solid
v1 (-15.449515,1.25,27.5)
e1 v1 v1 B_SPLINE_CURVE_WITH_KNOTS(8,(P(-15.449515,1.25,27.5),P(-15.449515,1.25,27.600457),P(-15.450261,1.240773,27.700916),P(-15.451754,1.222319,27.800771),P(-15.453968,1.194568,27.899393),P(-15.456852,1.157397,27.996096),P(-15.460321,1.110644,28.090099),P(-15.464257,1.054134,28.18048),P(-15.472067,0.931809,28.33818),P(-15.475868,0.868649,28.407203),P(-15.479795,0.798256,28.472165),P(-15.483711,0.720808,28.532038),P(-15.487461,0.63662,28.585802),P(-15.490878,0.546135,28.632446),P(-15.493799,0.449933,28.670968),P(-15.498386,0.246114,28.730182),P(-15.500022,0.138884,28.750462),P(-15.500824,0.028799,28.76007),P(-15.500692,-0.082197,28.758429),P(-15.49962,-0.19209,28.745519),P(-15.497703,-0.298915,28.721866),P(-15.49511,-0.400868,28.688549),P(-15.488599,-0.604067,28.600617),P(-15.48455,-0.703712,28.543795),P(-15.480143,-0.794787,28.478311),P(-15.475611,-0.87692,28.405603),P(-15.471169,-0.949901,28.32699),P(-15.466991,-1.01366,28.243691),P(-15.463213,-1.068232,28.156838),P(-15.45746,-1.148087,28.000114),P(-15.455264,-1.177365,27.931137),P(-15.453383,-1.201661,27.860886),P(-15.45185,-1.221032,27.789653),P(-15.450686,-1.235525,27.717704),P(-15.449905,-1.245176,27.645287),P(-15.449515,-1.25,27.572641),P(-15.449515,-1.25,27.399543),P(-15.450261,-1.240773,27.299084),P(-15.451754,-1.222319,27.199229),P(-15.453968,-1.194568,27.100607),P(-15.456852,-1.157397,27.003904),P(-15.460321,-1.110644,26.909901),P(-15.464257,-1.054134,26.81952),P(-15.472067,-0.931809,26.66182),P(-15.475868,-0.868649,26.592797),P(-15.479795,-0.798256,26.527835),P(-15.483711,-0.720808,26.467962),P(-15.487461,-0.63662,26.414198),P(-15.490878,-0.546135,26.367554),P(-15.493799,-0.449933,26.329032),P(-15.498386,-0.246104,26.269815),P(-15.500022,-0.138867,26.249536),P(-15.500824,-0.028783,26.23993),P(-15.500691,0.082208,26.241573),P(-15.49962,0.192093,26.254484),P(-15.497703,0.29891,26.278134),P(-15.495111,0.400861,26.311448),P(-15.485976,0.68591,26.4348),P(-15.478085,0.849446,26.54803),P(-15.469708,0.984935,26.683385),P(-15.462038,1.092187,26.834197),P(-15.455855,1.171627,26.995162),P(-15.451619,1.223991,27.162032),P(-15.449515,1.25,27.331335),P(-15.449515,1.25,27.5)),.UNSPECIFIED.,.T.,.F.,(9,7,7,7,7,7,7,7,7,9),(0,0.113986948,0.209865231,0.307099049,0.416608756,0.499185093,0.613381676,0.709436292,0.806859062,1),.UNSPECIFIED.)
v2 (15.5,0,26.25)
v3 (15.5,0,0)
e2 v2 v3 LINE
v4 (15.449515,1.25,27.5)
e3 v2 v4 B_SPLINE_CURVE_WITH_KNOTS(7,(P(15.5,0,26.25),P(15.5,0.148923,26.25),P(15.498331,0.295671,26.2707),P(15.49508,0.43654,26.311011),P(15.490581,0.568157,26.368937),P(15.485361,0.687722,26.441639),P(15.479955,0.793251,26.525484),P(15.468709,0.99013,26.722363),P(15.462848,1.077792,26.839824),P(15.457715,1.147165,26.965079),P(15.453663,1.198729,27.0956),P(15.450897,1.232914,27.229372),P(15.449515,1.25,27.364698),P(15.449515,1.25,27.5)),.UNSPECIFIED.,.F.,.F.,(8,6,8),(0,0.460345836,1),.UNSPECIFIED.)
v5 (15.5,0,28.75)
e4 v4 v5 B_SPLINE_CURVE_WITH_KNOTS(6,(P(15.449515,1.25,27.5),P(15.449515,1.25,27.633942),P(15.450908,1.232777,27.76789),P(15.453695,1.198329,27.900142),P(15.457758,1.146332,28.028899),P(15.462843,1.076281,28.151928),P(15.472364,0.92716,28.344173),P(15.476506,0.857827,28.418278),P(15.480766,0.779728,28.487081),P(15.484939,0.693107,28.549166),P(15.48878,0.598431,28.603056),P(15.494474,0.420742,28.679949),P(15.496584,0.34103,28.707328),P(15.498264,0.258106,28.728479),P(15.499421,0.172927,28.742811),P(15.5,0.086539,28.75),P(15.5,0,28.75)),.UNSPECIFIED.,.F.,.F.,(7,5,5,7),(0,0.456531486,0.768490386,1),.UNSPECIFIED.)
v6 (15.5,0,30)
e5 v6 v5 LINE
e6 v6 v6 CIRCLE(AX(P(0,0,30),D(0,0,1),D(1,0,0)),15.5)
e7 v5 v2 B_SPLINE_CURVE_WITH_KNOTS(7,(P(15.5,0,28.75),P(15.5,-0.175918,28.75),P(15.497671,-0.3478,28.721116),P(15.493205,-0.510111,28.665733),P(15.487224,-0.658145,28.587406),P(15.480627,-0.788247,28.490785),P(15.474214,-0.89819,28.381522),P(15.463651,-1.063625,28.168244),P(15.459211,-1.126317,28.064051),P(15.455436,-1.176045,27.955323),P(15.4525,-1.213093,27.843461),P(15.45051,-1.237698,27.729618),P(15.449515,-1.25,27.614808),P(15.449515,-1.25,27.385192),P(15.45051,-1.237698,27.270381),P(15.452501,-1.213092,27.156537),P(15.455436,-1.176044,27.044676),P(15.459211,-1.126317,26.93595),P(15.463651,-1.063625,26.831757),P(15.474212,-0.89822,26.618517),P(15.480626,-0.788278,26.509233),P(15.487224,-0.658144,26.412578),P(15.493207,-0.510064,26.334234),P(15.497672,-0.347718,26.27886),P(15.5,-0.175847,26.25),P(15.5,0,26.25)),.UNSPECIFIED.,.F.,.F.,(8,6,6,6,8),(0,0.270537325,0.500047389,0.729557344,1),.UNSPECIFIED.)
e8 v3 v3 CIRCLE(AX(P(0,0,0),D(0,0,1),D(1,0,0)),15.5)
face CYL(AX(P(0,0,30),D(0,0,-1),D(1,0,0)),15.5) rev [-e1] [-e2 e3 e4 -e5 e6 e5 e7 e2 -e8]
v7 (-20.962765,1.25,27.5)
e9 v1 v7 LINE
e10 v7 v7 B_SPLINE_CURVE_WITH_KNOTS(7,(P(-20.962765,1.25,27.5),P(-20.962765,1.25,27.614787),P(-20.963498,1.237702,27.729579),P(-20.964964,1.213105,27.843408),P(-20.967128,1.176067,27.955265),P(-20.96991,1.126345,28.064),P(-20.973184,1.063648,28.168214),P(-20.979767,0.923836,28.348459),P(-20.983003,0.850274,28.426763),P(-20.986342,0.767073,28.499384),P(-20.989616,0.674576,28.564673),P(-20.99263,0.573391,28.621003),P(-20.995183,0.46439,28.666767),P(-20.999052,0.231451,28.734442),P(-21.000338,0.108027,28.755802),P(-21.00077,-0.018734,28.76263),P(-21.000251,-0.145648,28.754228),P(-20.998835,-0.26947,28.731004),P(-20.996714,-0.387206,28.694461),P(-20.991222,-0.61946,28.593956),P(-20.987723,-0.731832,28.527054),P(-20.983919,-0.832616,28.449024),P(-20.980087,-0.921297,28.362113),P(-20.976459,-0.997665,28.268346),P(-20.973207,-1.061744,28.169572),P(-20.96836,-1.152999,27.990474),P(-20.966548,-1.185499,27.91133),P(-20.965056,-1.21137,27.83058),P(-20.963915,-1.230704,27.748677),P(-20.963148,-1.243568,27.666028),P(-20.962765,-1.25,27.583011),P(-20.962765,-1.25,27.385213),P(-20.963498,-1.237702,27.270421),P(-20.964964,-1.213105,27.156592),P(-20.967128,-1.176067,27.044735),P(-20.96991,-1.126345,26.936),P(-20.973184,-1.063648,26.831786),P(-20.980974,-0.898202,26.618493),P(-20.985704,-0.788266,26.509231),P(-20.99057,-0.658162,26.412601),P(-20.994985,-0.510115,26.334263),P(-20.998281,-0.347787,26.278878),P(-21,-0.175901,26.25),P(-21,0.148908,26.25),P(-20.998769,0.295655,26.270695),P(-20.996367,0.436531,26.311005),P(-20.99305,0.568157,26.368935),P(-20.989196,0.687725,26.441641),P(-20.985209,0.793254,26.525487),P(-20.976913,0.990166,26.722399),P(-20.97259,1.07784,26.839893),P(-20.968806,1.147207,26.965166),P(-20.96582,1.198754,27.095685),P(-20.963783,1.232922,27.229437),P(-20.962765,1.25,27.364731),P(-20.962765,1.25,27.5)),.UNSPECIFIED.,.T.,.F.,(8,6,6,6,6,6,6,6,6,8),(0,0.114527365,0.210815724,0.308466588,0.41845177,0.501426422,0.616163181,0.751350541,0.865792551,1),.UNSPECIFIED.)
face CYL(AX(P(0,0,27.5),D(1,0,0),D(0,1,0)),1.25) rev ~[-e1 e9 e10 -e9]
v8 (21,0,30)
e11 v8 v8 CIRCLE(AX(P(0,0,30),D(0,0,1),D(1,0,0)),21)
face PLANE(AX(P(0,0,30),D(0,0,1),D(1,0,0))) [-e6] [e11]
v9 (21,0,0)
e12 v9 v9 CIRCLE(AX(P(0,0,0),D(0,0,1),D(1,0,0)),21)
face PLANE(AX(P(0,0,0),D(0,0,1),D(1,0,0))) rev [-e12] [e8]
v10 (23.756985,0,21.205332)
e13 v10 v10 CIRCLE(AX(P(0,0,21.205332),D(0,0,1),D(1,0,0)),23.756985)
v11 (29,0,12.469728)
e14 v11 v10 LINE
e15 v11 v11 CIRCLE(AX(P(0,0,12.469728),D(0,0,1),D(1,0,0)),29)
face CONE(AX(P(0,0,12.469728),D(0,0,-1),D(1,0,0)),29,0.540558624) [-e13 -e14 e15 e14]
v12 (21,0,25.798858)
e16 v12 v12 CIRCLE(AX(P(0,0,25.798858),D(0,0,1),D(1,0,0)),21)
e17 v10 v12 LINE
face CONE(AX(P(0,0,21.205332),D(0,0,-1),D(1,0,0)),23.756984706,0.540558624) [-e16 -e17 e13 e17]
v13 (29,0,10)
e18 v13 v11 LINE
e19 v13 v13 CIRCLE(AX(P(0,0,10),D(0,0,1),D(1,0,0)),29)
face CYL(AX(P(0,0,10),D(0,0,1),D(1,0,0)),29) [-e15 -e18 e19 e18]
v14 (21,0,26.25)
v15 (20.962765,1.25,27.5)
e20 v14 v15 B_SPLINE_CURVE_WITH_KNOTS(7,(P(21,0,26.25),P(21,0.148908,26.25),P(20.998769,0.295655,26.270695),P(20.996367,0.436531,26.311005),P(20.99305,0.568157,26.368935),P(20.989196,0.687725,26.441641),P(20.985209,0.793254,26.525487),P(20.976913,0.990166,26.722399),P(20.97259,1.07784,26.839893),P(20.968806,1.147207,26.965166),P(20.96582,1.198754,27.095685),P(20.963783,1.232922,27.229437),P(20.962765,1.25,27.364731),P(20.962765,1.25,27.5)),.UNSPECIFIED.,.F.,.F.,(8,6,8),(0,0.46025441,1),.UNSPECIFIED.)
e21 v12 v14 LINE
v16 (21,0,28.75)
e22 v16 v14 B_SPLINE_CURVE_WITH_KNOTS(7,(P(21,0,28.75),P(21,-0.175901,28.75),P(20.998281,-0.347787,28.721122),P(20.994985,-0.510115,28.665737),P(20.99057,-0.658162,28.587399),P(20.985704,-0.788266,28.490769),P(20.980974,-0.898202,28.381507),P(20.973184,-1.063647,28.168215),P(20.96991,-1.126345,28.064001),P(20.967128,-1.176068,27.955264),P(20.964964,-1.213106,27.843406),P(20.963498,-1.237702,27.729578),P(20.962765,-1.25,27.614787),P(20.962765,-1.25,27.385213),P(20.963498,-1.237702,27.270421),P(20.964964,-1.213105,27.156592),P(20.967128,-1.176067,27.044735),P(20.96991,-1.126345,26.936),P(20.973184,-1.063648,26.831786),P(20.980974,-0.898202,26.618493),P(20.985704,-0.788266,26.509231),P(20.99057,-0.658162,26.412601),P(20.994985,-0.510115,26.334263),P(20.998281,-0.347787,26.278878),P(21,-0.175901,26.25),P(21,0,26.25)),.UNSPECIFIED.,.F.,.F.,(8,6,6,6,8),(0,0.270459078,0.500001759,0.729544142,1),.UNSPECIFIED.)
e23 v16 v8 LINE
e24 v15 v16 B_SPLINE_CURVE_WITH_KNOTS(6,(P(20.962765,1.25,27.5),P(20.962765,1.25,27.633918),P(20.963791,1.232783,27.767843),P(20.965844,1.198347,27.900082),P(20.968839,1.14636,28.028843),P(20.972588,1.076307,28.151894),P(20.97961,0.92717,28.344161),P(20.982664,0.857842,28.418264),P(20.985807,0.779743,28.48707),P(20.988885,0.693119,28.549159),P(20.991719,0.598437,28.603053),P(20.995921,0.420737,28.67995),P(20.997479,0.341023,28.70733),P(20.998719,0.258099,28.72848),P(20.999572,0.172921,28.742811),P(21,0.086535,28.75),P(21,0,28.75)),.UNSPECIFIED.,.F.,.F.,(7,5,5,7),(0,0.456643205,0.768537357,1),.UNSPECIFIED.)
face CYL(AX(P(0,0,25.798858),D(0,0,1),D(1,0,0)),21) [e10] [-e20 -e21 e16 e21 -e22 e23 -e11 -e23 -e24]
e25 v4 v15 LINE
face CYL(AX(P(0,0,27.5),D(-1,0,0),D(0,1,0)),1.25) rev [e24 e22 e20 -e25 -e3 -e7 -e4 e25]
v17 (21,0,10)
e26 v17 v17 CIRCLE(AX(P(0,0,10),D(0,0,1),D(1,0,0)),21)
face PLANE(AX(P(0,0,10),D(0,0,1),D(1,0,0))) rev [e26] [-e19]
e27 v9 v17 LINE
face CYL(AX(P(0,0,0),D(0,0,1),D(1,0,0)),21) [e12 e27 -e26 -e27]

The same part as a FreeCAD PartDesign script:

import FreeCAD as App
import Part
import Sketcher

V = App.Vector

doc = App.newDocument("Part")
body = doc.addObject("PartDesign::Body", "Body")

# Sketch on XZ plane
sketch1 = doc.addObject("Sketcher::SketchObject", "Sketch")
body.addObject(sketch1)
sketch1.AttachmentSupport = (doc.XZ_Plane, [""])
sketch1.MapMode = "FlatFace"
sketch1.addGeometry(Part.LineSegment(V(21, 10, 0), V(29, 10, 0)), False)
sketch1.addGeometry(Part.LineSegment(V(29, 10, 0), V(29, 12.5, 0)), False)
sketch1.addGeometry(Part.LineSegment(V(29, 12.5, 0), V(23.8, 21.2, 0)), False)
sketch1.addGeometry(Part.LineSegment(V(23.8, 21.2, 0), V(21, 25.8, 0)), False)
sketch1.addGeometry(Part.LineSegment(V(21, 25.8, 0), V(21, 30, 0)), False)
sketch1.addGeometry(Part.LineSegment(V(21, 30, 0), V(15.5, 30, 0)), False)
sketch1.addGeometry(Part.LineSegment(V(15.5, 30, 0), V(15.5, 0, 0)), False)
sketch1.addGeometry(Part.LineSegment(V(15.5, 0, 0), V(21, 0, 0)), False)
sketch1.addGeometry(Part.LineSegment(V(21, 0, 0), V(21, 10, 0)), False)
sketch1.addConstraint(Sketcher.Constraint("Coincident", 0, 2, 1, 1))
sketch1.addConstraint(Sketcher.Constraint("Coincident", 1, 2, 2, 1))
sketch1.addConstraint(Sketcher.Constraint("Coincident", 2, 2, 3, 1))
sketch1.addConstraint(Sketcher.Constraint("Coincident", 3, 2, 4, 1))
sketch1.addConstraint(Sketcher.Constraint("Coincident", 4, 2, 5, 1))
sketch1.addConstraint(Sketcher.Constraint("Coincident", 5, 2, 6, 1))
sketch1.addConstraint(Sketcher.Constraint("Coincident", 6, 2, 7, 1))
sketch1.addConstraint(Sketcher.Constraint("Coincident", 7, 2, 8, 1))
sketch1.addConstraint(Sketcher.Constraint("Coincident", 8, 2, 0, 1))
sketch1.addConstraint(Sketcher.Constraint("Horizontal", 0))
sketch1.addConstraint(Sketcher.Constraint("Vertical", 1))
sketch1.addConstraint(Sketcher.Constraint("Vertical", 4))
sketch1.addConstraint(Sketcher.Constraint("Horizontal", 5))
sketch1.addConstraint(Sketcher.Constraint("Vertical", 6))
sketch1.addConstraint(Sketcher.Constraint("Horizontal", 7))
sketch1.addConstraint(Sketcher.Constraint("Vertical", 8))
sketch1.addConstraint(Sketcher.Constraint("PointOnObject", 6, 2, -1))
sketch1.addConstraint(Sketcher.Constraint("Parallel", 2, 3))
sketch1.addConstraint(Sketcher.Constraint("Vertical", 4, 2, 7, 2))
sketch1.addConstraint(Sketcher.Constraint("DistanceX", 0, 1, 0, 2, 8.0))
sketch1.addConstraint(Sketcher.Constraint("DistanceY", 6, 2, 6, 1, 30.0))
sketch1.addConstraint(Sketcher.Constraint("DistanceY", 8, 1, 8, 2, 10.0))
sketch1.addConstraint(Sketcher.Constraint("DistanceX", 5, 2, 5, 1, 5.5))
sketch1.addConstraint(Sketcher.Constraint("DistanceX", -1, 1, 0, 2, 29.0))
sketch1.addConstraint(Sketcher.Constraint("DistanceY", 1, 1, 1, 2, 2.469728))
sketch1.addConstraint(Sketcher.Constraint("DistanceY", 4, 1, 4, 2, 4.201142))
sketch1.addConstraint(Sketcher.Constraint("Distance", 2, 10.188228))
revolution = doc.addObject("PartDesign::Revolution", "Revolution")
body.addObject(revolution)
revolution.Profile = sketch1
revolution.ReferenceAxis = (sketch1, ["V_Axis"])
revolution.Angle = 360

# Sketch on YZ plane
sketch2 = doc.addObject("Sketcher::SketchObject", "Sketch001")
body.addObject(sketch2)
sketch2.AttachmentSupport = (doc.YZ_Plane, [""])
sketch2.MapMode = "FlatFace"
sketch2.addGeometry(Part.Circle(V(0, 27.5, 0), V(0, 0, 1), 1.2), False)
sketch2.addConstraint(Sketcher.Constraint("PointOnObject", 0, 3, -2))
sketch2.addConstraint(Sketcher.Constraint("Diameter", 0, 2.5))
sketch2.addConstraint(Sketcher.Constraint("DistanceY", -1, 1, 0, 3, 27.5))
pocket1 = doc.addObject("PartDesign::Pocket", "Pocket")
body.addObject(pocket1)
pocket1.Profile = sketch2
pocket1.Type = "ThroughAll"
pocket1.Midplane = True

doc.recompute()
